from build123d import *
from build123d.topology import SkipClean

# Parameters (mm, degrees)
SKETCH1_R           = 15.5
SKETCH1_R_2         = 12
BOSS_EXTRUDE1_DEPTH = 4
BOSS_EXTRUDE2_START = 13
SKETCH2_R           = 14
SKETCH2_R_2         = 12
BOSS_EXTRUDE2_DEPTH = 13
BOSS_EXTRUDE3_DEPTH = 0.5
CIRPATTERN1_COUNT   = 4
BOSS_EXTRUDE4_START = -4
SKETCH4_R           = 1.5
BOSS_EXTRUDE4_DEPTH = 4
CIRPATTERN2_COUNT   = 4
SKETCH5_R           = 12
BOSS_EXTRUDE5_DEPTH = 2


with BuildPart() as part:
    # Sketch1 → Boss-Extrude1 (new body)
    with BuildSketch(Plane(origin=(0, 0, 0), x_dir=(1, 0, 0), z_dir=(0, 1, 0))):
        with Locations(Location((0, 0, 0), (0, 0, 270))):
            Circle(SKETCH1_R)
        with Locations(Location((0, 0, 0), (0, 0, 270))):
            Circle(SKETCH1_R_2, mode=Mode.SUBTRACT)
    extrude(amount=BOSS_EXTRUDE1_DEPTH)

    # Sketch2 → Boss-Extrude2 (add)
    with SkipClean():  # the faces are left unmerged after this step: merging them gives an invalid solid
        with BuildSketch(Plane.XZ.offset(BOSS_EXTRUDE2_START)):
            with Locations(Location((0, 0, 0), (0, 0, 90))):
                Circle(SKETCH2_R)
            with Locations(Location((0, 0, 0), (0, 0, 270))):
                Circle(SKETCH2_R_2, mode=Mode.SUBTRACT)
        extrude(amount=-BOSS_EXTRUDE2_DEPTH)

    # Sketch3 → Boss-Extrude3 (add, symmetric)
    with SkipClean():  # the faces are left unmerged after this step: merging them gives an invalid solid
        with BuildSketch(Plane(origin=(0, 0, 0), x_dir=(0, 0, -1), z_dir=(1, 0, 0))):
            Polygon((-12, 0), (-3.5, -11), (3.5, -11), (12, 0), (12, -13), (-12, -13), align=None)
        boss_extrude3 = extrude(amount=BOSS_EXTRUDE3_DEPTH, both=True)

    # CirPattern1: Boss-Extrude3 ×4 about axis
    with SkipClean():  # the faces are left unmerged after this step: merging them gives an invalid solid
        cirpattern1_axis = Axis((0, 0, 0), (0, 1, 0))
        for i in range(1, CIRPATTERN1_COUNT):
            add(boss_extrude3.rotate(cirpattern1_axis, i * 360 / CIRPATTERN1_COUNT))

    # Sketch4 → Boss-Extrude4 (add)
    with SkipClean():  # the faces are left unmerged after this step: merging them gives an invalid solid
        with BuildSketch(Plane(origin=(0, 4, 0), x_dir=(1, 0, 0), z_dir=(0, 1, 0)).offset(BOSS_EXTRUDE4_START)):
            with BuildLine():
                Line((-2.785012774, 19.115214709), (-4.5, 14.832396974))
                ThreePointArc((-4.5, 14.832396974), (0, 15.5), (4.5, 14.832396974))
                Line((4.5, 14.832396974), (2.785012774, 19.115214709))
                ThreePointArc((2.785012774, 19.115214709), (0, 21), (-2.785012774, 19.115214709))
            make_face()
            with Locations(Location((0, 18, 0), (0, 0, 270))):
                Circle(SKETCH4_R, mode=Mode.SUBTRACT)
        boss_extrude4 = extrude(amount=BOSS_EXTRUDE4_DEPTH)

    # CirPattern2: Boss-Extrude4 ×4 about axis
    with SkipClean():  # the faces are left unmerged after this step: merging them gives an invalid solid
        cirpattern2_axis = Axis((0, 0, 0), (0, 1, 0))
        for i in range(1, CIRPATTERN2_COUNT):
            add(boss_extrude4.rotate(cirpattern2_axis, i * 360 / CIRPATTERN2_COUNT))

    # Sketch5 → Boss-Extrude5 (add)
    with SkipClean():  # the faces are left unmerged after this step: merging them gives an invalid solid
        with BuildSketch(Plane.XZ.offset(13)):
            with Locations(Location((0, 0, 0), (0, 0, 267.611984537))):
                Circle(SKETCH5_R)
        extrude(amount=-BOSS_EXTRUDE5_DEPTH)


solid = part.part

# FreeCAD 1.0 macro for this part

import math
import FreeCAD as App
import Part
import Sketcher

V = App.Vector


def add_polygon(sketch, points):
    """Adds a closed chain of lines whose ends are joined by coincident constraints."""
    first, n = sketch.GeometryCount, len(points)
    for a, b in zip(points, points[1:] + points[:1]):
        sketch.addGeometry(Part.LineSegment(App.Vector(*a, 0), App.Vector(*b, 0)), False)
    for i in range(n):
        sketch.addConstraint(Sketcher.Constraint("Coincident", first + i, 2, first + (i + 1) % n, 1))

doc = App.newDocument("Part")
params = doc.addObject("Spreadsheet::Sheet", "Params")
for row, (alias, value) in enumerate([
    ("sketch1_diameter", "31 mm"),
    ("sketch1_diameter2", "24 mm"),
    ("pad1_length", "4 mm"),
    ("sketch2_diameter", "28 mm"),
    ("sketch2_diameter2", "24 mm"),
    ("pad2_length", "13 mm"),
    ("sketch3_width", "13 mm"),
    ("sketch3_height", "24 mm"),
    ("sketch3_height2", "7 mm"),
    ("pad3_length", "1 mm"),
    ("sketch4_diameter", "3 mm"),
    ("sketch4_radius", "3 mm"),
    ("sketch4_radius2", "15.5 mm"),
    ("pad4_length", "4 mm"),
    ("sketch5_diameter", "24 mm"),
    ("pad5_length", "2 mm"),
], start=1):
    params.set(f"A{row}", alias)
    params.set(f"B{row}", "=" + value)
    params.setAlias(f"B{row}", alias)

body = doc.addObject("PartDesign::Body", "Body")

# Sketch on XZ plane
sketch1 = doc.addObject("Sketcher::SketchObject", "Sketch")
body.addObject(sketch1)
sketch1.AttachmentSupport = (doc.XZ_Plane, [""])
sketch1.MapMode = "FlatFace"
sketch1.addGeometry(Part.Circle(V(0, 0, 0), V(0, 0, 1), 16), False)
sketch1.addGeometry(Part.Circle(V(0, 0, 0), V(0, 0, 1), 12), False)
sketch1.addConstraint(Sketcher.Constraint("Coincident", 0, 3, -1, 1))
sketch1.addConstraint(Sketcher.Constraint("Coincident", 1, 3, -1, 1))
sketch1.addConstraint(Sketcher.Constraint("Diameter", 0, 31.0))
sketch1.addConstraint(Sketcher.Constraint("Diameter", 1, 24.0))
sketch1.setExpression("Constraints[2]", "Params.sketch1_diameter")
sketch1.setExpression("Constraints[3]", "Params.sketch1_diameter2")
pad1 = doc.addObject("PartDesign::Pad", "Pad")
body.addObject(pad1)
pad1.Profile = sketch1
pad1.setExpression("Length", "Params.pad1_length")
pad1.Reversed = True

# Sketch on XZ plane
sketch2 = doc.addObject("Sketcher::SketchObject", "Sketch001")
body.addObject(sketch2)
sketch2.AttachmentSupport = (doc.XZ_Plane, [""])
sketch2.MapMode = "FlatFace"
sketch2.AttachmentOffset = App.Placement(V(0, 0, 13), App.Rotation())
sketch2.addGeometry(Part.Circle(V(0, 0, 0), V(0, 0, 1), 14), False)
sketch2.addGeometry(Part.Circle(V(0, 0, 0), V(0, 0, 1), 12), False)
sketch2.addConstraint(Sketcher.Constraint("Coincident", 0, 3, -1, 1))
sketch2.addConstraint(Sketcher.Constraint("Coincident", 1, 3, -1, 1))
sketch2.addConstraint(Sketcher.Constraint("Diameter", 0, 28.0))
sketch2.addConstraint(Sketcher.Constraint("Diameter", 1, 24.0))
sketch2.setExpression("Constraints[2]", "Params.sketch2_diameter")
sketch2.setExpression("Constraints[3]", "Params.sketch2_diameter2")
pad2 = doc.addObject("PartDesign::Pad", "Pad001")
body.addObject(pad2)
pad2.Profile = sketch2
pad2.setExpression("Length", "Params.pad2_length")
pad2.Reversed = True

# Sketch on YZ plane
sketch3 = doc.addObject("Sketcher::SketchObject", "Sketch002")
body.addObject(sketch3)
sketch3.AttachmentSupport = (doc.YZ_Plane, [""])
sketch3.MapMode = "FlatFace"
add_polygon(sketch3, [(-11, 4), (0, 12), (-13, 12), (-13, -12), (0, -12), (-11, -4)])  # lines 0-5
sketch3.addConstraint(Sketcher.Constraint("Horizontal", 1))
sketch3.addConstraint(Sketcher.Constraint("Vertical", 2))
sketch3.addConstraint(Sketcher.Constraint("Horizontal", 3))
sketch3.addConstraint(Sketcher.Constraint("Vertical", 5))
sketch3.addConstraint(Sketcher.Constraint("Symmetric", 0, 2, 3, 2, -1, 1))
sketch3.addConstraint(Sketcher.Constraint("PointOnObject", 0, 2, -2))
sketch3.addConstraint(Sketcher.Constraint("Equal", 0, 4))
sketch3.addConstraint(Sketcher.Constraint("DistanceX", 1, 2, 1, 1, 13.0))
sketch3.addConstraint(Sketcher.Constraint("DistanceY", 2, 2, 2, 1, 24.0))
sketch3.addConstraint(Sketcher.Constraint("DistanceY", 5, 1, 5, 2, 7.0))
sketch3.addConstraint(Sketcher.Constraint("DistanceX", 4, 2, -1, 1, 11.0))
sketch3.setExpression("Constraints[13]", "Params.sketch3_width")
sketch3.setExpression("Constraints[14]", "Params.sketch3_height")
sketch3.setExpression("Constraints[15]", "Params.sketch3_height2")
pad3 = doc.addObject("PartDesign::Pad", "Pad002")
body.addObject(pad3)
pad3.Profile = sketch3
pad3.setExpression("Length", "Params.pad3_length")
pad3.Midplane = True
doc.recompute()

polarpattern = doc.addObject("PartDesign::PolarPattern", "PolarPattern")
body.addObject(polarpattern)
polarpattern.Originals = [pad3]
polarpattern.Axis = (doc.Y_Axis, [""])
polarpattern.Angle = 360
polarpattern.Occurrences = 4
body.Tip = polarpattern

# Sketch on XZ plane
sketch4 = doc.addObject("Sketcher::SketchObject", "Sketch003")
body.addObject(sketch4)
sketch4.AttachmentSupport = (doc.XZ_Plane, [""])
sketch4.MapMode = "FlatFace"
sketch4.addGeometry(Part.LineSegment(V(-2.8, -19.1, 0), V(-4.5, -14.8, 0)), False)
sketch4.addGeometry(Part.ArcOfCircle(Part.Circle(V(0, 0, 0), V(0, 0, 1), 15.5), math.radians(-107), math.radians(-73)), False)
sketch4.addGeometry(Part.LineSegment(V(4.5, -14.8, 0), V(2.8, -19.1, 0)), False)
sketch4.addGeometry(Part.ArcOfCircle(Part.Circle(V(0, -18, 0), V(0, 0, 1), 3), math.radians(-158), math.radians(-22)), False)
sketch4.addGeometry(Part.Circle(V(0, -18, 0), V(0, 0, 1), 1.5), False)
sketch4.addConstraint(Sketcher.Constraint("Coincident", 0, 2, 1, 1))
sketch4.addConstraint(Sketcher.Constraint("Coincident", 1, 2, 2, 1))
sketch4.addConstraint(Sketcher.Constraint("Tangent", 2, 2, 3, 2))
sketch4.addConstraint(Sketcher.Constraint("Tangent", 3, 1, 0, 1))
sketch4.addConstraint(Sketcher.Constraint("Coincident", 1, 3, -1, 1))
sketch4.addConstraint(Sketcher.Constraint("Coincident", 4, 3, 3, 3))
sketch4.addConstraint(Sketcher.Constraint("Symmetric", 2, 2, 3, 1, -2))
sketch4.addConstraint(Sketcher.Constraint("Diameter", 4, 3.0))
sketch4.addConstraint(Sketcher.Constraint("Radius", 3, 3.0))
sketch4.addConstraint(Sketcher.Constraint("Radius", 1, 15.5))
sketch4.addConstraint(Sketcher.Constraint("DistanceY", 3, 3, -1, 1, 18.0))
sketch4.addConstraint(Sketcher.Constraint("DistanceX", 0, 2, 1, 2, 9.0))
sketch4.setExpression("Constraints[7]", "Params.sketch4_diameter")
sketch4.setExpression("Constraints[8]", "Params.sketch4_radius")
sketch4.setExpression("Constraints[9]", "Params.sketch4_radius2")
pad4 = doc.addObject("PartDesign::Pad", "Pad003")
body.addObject(pad4)
pad4.Profile = sketch4
pad4.setExpression("Length", "Params.pad4_length")
pad4.Reversed = True
doc.recompute()

polarpattern2 = doc.addObject("PartDesign::PolarPattern", "PolarPattern001")
body.addObject(polarpattern2)
polarpattern2.Originals = [pad4]
polarpattern2.Axis = (doc.Y_Axis, [""])
polarpattern2.Angle = 360
polarpattern2.Occurrences = 4
body.Tip = polarpattern2

# Sketch on XZ plane
sketch5 = doc.addObject("Sketcher::SketchObject", "Sketch004")
body.addObject(sketch5)
sketch5.AttachmentSupport = (doc.XZ_Plane, [""])
sketch5.MapMode = "FlatFace"
sketch5.AttachmentOffset = App.Placement(V(0, 0, 13), App.Rotation())
sketch5.addGeometry(Part.Circle(V(0, 0, 0), V(0, 0, 1), 12), False)
sketch5.addConstraint(Sketcher.Constraint("Coincident", 0, 3, -1, 1))
sketch5.addConstraint(Sketcher.Constraint("Diameter", 0, 24.0))
sketch5.setExpression("Constraints[1]", "Params.sketch5_diameter")
pad5 = doc.addObject("PartDesign::Pad", "Pad004")
body.addObject(pad5)
pad5.Profile = sketch5
pad5.setExpression("Length", "Params.pad5_length")
pad5.Reversed = True

doc.recompute()
